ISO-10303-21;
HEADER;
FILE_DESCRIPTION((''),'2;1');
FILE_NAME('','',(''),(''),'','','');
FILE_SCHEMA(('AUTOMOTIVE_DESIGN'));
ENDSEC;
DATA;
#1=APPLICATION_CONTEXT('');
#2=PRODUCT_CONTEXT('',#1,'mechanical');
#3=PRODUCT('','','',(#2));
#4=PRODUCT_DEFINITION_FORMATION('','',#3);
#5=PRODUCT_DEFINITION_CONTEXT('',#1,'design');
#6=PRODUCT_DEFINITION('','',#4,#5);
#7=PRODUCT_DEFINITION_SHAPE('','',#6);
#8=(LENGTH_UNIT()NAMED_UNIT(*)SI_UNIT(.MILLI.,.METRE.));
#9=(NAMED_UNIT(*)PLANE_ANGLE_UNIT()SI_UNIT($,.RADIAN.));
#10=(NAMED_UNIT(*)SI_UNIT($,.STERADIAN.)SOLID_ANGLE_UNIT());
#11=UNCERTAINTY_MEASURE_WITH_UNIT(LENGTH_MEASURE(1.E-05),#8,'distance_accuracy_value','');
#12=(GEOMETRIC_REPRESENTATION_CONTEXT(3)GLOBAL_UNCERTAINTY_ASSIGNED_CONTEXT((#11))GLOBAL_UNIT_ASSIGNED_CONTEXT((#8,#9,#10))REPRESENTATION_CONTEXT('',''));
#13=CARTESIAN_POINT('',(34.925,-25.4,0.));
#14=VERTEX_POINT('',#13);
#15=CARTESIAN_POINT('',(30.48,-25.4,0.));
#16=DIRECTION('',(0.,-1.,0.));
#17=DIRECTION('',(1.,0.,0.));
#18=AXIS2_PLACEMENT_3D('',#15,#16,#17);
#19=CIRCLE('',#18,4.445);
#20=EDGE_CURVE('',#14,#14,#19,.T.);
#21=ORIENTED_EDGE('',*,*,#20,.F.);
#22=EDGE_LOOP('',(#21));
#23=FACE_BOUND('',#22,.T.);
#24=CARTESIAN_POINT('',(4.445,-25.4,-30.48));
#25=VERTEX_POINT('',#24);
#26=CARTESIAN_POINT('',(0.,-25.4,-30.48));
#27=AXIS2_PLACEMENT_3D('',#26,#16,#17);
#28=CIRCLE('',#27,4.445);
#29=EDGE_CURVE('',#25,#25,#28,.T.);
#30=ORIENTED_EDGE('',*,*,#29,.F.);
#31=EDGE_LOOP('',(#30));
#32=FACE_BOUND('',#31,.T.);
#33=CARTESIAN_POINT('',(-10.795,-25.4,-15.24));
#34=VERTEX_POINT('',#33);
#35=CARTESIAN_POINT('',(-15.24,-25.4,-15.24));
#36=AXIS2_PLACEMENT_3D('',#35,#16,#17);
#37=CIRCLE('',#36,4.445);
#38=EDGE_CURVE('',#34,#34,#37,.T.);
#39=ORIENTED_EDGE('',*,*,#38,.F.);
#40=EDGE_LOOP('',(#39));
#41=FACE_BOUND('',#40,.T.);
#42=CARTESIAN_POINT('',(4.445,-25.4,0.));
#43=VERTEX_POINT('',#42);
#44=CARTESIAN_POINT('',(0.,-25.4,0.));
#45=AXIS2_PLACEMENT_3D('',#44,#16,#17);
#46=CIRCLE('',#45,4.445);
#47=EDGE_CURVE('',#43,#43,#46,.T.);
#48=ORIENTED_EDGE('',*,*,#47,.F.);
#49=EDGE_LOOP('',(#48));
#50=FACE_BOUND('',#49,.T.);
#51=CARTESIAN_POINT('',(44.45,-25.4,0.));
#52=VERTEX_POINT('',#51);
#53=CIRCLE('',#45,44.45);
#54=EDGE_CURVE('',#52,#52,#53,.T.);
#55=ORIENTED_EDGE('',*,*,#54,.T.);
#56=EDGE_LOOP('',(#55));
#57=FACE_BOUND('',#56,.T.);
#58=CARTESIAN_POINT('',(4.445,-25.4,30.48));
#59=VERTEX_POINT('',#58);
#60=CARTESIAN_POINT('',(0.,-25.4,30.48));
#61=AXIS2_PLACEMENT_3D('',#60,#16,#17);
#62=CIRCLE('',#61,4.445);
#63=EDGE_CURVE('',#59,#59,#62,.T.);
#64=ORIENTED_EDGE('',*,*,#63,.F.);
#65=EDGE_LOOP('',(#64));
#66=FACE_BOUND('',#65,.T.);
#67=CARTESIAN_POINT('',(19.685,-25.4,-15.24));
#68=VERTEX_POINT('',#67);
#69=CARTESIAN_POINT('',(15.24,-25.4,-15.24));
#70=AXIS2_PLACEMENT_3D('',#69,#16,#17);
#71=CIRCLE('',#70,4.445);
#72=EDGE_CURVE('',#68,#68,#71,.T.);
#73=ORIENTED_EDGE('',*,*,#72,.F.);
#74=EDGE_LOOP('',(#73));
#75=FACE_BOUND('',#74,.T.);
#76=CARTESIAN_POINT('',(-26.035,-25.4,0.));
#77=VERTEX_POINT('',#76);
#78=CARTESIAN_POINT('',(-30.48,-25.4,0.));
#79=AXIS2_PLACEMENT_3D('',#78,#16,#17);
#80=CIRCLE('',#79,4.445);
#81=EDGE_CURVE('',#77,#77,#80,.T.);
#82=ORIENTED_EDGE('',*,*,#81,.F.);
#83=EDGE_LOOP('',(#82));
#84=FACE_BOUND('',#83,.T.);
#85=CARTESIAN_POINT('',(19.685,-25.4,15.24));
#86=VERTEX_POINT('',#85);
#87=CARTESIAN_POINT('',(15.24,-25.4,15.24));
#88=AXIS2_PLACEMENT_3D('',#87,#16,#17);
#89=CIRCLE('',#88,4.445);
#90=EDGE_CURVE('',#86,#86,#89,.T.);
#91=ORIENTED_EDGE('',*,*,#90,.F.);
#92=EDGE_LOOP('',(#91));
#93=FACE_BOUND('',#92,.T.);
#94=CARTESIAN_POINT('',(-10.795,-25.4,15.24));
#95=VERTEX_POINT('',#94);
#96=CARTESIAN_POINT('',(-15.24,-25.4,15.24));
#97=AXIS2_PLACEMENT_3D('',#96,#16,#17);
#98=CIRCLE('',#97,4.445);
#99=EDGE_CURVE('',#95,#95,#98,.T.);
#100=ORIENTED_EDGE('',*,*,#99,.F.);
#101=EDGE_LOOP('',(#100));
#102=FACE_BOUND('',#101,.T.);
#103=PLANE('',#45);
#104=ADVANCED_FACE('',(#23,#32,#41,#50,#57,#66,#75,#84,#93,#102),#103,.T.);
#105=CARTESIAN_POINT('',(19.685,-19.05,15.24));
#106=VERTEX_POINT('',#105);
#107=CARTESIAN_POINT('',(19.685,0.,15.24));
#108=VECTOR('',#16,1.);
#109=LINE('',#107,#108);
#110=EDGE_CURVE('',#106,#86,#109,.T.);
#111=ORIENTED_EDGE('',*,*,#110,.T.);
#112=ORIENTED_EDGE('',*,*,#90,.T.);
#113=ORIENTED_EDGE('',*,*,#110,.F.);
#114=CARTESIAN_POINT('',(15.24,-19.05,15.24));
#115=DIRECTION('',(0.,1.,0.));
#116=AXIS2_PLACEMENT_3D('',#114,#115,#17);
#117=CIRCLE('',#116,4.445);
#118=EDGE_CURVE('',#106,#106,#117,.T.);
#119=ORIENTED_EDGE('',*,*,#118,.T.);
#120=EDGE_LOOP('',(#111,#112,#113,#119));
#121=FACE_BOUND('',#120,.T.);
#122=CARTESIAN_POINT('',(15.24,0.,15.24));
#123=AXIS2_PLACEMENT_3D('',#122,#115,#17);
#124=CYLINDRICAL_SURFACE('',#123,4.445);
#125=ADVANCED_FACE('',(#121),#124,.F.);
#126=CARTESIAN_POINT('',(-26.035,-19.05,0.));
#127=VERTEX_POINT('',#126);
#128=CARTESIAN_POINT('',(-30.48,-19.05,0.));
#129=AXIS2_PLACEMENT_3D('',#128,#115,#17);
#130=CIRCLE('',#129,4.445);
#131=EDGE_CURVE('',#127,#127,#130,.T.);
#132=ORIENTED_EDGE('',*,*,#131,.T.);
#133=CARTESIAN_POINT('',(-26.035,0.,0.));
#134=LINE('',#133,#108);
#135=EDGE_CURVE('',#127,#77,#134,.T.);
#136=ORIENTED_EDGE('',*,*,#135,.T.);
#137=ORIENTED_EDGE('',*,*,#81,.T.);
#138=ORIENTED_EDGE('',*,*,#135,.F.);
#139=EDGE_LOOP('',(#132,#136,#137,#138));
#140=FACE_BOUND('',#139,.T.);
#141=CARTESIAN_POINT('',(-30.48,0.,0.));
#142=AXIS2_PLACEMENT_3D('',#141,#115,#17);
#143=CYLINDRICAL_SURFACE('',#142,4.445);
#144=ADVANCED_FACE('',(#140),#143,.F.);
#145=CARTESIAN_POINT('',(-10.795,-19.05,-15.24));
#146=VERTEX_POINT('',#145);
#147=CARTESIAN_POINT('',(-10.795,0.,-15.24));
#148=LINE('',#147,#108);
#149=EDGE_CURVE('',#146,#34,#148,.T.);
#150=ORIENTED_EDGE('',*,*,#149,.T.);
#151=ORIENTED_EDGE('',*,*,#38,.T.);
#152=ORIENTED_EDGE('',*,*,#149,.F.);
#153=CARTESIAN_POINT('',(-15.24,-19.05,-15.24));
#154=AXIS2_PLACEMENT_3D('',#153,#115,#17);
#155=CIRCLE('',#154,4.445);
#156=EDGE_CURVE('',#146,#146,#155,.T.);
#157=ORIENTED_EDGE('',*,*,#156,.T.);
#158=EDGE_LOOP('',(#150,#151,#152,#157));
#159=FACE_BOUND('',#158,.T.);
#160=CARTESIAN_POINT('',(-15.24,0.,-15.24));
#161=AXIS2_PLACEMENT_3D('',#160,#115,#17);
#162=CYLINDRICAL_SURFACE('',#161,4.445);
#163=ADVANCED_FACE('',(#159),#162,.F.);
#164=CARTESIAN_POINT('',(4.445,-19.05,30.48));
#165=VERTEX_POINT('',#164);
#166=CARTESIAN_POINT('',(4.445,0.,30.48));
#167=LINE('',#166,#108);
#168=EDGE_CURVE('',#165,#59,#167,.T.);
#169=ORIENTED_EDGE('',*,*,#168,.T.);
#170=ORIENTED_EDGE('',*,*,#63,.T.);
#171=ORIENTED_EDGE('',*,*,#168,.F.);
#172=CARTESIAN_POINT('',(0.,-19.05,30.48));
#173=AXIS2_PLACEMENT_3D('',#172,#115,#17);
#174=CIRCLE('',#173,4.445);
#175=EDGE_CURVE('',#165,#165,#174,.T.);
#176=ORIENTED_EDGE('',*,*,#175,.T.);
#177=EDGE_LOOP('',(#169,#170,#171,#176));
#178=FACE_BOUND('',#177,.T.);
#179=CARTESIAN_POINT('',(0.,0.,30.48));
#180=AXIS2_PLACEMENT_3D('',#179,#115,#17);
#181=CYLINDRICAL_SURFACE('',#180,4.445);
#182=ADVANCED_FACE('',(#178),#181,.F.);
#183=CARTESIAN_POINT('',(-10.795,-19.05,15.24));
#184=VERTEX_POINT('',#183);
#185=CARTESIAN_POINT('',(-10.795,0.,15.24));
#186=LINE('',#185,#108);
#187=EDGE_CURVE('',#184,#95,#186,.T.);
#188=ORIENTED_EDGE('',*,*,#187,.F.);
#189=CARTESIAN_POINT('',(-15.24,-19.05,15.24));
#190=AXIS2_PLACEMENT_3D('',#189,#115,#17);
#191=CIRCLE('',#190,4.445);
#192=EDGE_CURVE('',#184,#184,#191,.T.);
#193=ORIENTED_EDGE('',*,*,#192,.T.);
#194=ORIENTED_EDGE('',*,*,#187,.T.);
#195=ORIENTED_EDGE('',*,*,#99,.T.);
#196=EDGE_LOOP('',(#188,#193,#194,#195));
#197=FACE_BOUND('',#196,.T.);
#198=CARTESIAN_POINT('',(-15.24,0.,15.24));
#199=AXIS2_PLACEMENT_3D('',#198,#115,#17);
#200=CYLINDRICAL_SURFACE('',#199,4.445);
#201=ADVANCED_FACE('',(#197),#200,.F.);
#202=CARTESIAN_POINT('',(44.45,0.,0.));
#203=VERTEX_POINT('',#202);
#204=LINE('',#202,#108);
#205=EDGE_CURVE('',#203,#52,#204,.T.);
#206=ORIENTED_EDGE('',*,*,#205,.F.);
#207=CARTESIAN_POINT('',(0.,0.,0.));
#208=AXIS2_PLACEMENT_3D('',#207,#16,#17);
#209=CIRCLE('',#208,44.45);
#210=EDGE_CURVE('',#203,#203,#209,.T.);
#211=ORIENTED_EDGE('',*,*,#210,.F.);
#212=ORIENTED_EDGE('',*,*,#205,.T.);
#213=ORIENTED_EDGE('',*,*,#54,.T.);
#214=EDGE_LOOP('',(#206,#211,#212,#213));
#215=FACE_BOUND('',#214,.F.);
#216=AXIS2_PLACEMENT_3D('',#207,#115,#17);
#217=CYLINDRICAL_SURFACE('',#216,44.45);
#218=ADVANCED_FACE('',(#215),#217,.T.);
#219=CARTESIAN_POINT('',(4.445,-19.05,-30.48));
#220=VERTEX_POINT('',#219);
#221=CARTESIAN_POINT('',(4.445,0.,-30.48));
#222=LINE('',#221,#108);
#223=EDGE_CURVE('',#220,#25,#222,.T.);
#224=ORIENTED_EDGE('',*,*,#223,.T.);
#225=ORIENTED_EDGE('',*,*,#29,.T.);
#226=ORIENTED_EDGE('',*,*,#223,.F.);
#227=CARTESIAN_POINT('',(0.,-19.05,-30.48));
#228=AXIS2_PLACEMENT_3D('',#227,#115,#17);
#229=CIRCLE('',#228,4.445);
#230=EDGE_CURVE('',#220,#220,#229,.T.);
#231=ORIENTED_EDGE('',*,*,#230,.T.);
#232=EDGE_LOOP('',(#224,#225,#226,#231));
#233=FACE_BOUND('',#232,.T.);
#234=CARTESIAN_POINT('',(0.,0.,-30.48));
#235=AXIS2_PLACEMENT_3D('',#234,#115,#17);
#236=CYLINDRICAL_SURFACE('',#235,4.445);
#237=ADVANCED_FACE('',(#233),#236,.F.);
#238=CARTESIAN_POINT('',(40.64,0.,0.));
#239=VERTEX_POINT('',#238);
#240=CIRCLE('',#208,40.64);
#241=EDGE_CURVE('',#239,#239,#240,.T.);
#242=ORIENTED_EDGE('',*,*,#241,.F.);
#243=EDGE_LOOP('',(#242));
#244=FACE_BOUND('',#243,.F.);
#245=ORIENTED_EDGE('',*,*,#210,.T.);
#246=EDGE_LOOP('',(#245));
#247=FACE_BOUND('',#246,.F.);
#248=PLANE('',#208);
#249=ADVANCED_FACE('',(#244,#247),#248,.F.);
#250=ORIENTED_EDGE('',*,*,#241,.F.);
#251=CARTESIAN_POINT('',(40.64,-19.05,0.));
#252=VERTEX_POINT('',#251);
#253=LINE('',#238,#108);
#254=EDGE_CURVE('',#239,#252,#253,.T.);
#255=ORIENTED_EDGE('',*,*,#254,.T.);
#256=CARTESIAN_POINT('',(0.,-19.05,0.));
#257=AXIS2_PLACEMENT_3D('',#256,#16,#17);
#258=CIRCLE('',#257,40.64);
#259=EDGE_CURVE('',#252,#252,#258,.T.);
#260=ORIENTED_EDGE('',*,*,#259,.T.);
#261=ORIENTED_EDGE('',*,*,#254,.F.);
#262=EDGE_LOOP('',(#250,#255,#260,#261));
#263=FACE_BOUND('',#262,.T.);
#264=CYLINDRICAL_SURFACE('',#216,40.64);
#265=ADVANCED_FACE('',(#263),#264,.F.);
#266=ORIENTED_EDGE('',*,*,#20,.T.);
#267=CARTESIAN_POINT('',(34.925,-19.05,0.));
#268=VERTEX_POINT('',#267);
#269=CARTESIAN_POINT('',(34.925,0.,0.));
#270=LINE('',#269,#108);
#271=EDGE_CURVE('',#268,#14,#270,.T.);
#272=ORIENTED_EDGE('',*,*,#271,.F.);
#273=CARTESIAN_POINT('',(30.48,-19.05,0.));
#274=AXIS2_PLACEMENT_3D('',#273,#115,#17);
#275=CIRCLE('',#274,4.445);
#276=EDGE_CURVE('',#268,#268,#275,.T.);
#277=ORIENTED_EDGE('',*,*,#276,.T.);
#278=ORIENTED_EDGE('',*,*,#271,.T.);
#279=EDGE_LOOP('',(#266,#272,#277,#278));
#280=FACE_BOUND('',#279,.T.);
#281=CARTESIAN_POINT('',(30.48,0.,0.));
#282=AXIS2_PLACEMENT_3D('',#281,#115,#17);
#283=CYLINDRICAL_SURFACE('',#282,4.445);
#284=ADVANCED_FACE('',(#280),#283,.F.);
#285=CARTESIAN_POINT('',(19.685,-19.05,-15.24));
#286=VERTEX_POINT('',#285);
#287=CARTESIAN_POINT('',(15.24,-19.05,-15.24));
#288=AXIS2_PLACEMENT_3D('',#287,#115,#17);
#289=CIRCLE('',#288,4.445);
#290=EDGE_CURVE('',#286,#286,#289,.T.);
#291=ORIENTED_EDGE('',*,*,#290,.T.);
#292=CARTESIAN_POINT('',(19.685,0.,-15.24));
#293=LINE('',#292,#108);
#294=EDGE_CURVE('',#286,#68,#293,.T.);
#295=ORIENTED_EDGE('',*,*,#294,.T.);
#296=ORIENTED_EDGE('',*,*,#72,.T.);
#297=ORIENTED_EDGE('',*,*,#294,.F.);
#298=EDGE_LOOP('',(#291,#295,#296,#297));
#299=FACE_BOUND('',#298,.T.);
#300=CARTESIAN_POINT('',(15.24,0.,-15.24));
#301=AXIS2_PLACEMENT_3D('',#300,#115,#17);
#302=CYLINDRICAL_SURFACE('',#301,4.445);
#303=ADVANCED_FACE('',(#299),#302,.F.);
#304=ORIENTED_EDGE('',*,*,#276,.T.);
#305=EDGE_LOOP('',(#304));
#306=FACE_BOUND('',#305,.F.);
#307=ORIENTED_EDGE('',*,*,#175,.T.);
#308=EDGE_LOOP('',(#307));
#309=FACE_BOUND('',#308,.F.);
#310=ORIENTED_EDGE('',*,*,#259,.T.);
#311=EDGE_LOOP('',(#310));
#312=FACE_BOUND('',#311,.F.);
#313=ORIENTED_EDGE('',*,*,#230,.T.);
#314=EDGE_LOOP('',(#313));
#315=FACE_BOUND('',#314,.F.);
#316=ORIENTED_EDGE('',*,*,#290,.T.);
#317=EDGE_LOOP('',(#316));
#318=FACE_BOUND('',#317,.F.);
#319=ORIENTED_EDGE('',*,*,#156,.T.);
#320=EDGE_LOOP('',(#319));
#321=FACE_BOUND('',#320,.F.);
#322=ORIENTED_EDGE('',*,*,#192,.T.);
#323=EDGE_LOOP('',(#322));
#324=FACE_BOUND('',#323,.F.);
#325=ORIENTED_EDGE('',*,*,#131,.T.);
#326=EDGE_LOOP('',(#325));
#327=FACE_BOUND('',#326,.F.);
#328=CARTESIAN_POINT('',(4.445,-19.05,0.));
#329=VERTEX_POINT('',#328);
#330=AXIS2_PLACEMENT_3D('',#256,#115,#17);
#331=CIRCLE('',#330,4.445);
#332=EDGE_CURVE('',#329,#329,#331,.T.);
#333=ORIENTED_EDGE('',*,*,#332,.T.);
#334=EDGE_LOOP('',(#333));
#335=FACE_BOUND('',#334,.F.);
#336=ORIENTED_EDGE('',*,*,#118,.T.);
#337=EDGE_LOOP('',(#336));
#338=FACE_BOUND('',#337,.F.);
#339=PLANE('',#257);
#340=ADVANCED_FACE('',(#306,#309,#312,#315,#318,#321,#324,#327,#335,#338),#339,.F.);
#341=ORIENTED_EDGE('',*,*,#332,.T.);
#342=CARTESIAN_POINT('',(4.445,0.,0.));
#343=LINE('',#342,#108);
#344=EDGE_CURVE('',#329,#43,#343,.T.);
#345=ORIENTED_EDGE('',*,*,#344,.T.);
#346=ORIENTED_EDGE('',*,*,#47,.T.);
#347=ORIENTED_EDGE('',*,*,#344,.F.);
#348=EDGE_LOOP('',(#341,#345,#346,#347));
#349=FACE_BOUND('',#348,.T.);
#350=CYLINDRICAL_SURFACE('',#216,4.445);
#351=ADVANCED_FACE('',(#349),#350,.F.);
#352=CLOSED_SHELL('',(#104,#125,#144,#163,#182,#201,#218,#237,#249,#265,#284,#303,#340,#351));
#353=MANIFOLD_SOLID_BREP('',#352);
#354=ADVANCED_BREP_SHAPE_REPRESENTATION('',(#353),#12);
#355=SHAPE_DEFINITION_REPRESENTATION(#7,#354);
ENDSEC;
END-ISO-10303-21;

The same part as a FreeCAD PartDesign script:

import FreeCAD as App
import Part
import Sketcher

V = App.Vector
Q = App.Units.Quantity

doc = App.newDocument("Part")
body = doc.addObject("PartDesign::Body", "Body")

# Sketch on XZ plane
sketch1 = body.newObject("Sketcher::SketchObject", "Sketch")
sketch1.AttachmentSupport = (doc.getObject("XZ_Plane"), [""])
sketch1.MapMode = "FlatFace"
sketch1.addGeometry(Part.Circle(V(0, 0, 0), V(0, 0, 1), 44), False)
sketch1.addConstraint(Sketcher.Constraint("Coincident", 0, 3, -1, 1))
sketch1.addConstraint(Sketcher.Constraint("Diameter", 0, Q("3.5 in")))
pad1 = body.newObject("PartDesign::Pad", "Pad")
pad1.Profile = sketch1
pad1.Length = Q("1 in")

# Sketch on XZ plane
sketch2 = body.newObject("Sketcher::SketchObject", "Sketch001")
sketch2.AttachmentSupport = (doc.getObject("XZ_Plane"), [""])
sketch2.MapMode = "FlatFace"
sketch2.addGeometry(Part.Circle(V(0, 0, 0), V(0, 0, 1), 41), False)
sketch2.addConstraint(Sketcher.Constraint("Coincident", 0, 3, -1, 1))
sketch2.addConstraint(Sketcher.Constraint("Diameter", 0, Q("3.2 in")))
pocket1 = body.newObject("PartDesign::Pocket", "Pocket")
pocket1.Profile = sketch2
pocket1.Length = Q("0.75 in")
pocket1.Reversed = True

# Sketch on XZ plane
sketch3 = body.newObject("Sketcher::SketchObject", "Sketch002")
sketch3.AttachmentSupport = (doc.getObject("XZ_Plane"), [""])
sketch3.MapMode = "FlatFace"
sketch3.addGeometry(Part.Circle(V(0, 30.5, 0), V(0, 0, 1), 4.4), False)
sketch3.addGeometry(Part.Circle(V(-15.2, 15.2, 0), V(0, 0, 1), 4.4), False)
sketch3.addGeometry(Part.Circle(V(-30.5, 0, 0), V(0, 0, 1), 4.4), False)
sketch3.addGeometry(Part.Circle(V(15.2, 15.2, 0), V(0, 0, 1), 4.4), False)
sketch3.addGeometry(Part.Circle(V(30.5, 0, 0), V(0, 0, 1), 4.4), False)
sketch3.addGeometry(Part.Circle(V(-15.2, -15.2, 0), V(0, 0, 1), 4.4), False)
sketch3.addGeometry(Part.Circle(V(15.2, -15.2, 0), V(0, 0, 1), 4.4), False)
sketch3.addGeometry(Part.Circle(V(0, -30.5, 0), V(0, 0, 1), 4.4), False)
sketch3.addGeometry(Part.Circle(V(0, 0, 0), V(0, 0, 1), 4.4), False)
sketch3.addConstraint(Sketcher.Constraint("Coincident", 8, 3, -1, 1))
sketch3.addConstraint(Sketcher.Constraint("Equal", 0, 1))
sketch3.addConstraint(Sketcher.Constraint("Equal", 1, 2))
sketch3.addConstraint(Sketcher.Constraint("Equal", 2, 3))
sketch3.addConstraint(Sketcher.Constraint("Equal", 3, 4))
sketch3.addConstraint(Sketcher.Constraint("Equal", 4, 5))
sketch3.addConstraint(Sketcher.Constraint("Equal", 5, 6))
sketch3.addConstraint(Sketcher.Constraint("Equal", 6, 7))
sketch3.addConstraint(Sketcher.Constraint("Equal", 7, 8))
sketch3.addConstraint(Sketcher.Constraint("Symmetric", 2, 3, 4, 3, -1, 1))
sketch3.addConstraint(Sketcher.Constraint("Symmetric", 3, 3, 5, 3, -1, 1))
sketch3.addConstraint(Sketcher.Constraint("Symmetric", 1, 3, 6, 3, -1, 1))
sketch3.addConstraint(Sketcher.Constraint("Symmetric", 0, 3, 7, 3, -1, 1))
sketch3.addConstraint(Sketcher.Constraint("Symmetric", 1, 3, 3, 3, -2))
sketch3.addConstraint(Sketcher.Constraint("PointOnObject", 0, 3, -2))
sketch3.addConstraint(Sketcher.Constraint("PointOnObject", 2, 3, -1))
sketch3.addConstraint(Sketcher.Constraint("Diameter", 0, Q("0.35 in")))
sketch3.addConstraint(Sketcher.Constraint("DistanceY", -1, 1, 0, 3, Q("1.2 in")))
sketch3.addConstraint(Sketcher.Constraint("DistanceX", 1, 3, -1, 1, Q("0.6 in")))
sketch3.addConstraint(Sketcher.Constraint("DistanceY", -1, 1, 1, 3, Q("0.6 in")))
sketch3.addConstraint(Sketcher.Constraint("DistanceX", 2, 3, -1, 1, Q("1.2 in")))
pocket2 = body.newObject("PartDesign::Pocket", "Pocket001")
pocket2.Profile = sketch3
pocket2.Length = Q("1 in")
pocket2.Reversed = True

doc.recompute()
